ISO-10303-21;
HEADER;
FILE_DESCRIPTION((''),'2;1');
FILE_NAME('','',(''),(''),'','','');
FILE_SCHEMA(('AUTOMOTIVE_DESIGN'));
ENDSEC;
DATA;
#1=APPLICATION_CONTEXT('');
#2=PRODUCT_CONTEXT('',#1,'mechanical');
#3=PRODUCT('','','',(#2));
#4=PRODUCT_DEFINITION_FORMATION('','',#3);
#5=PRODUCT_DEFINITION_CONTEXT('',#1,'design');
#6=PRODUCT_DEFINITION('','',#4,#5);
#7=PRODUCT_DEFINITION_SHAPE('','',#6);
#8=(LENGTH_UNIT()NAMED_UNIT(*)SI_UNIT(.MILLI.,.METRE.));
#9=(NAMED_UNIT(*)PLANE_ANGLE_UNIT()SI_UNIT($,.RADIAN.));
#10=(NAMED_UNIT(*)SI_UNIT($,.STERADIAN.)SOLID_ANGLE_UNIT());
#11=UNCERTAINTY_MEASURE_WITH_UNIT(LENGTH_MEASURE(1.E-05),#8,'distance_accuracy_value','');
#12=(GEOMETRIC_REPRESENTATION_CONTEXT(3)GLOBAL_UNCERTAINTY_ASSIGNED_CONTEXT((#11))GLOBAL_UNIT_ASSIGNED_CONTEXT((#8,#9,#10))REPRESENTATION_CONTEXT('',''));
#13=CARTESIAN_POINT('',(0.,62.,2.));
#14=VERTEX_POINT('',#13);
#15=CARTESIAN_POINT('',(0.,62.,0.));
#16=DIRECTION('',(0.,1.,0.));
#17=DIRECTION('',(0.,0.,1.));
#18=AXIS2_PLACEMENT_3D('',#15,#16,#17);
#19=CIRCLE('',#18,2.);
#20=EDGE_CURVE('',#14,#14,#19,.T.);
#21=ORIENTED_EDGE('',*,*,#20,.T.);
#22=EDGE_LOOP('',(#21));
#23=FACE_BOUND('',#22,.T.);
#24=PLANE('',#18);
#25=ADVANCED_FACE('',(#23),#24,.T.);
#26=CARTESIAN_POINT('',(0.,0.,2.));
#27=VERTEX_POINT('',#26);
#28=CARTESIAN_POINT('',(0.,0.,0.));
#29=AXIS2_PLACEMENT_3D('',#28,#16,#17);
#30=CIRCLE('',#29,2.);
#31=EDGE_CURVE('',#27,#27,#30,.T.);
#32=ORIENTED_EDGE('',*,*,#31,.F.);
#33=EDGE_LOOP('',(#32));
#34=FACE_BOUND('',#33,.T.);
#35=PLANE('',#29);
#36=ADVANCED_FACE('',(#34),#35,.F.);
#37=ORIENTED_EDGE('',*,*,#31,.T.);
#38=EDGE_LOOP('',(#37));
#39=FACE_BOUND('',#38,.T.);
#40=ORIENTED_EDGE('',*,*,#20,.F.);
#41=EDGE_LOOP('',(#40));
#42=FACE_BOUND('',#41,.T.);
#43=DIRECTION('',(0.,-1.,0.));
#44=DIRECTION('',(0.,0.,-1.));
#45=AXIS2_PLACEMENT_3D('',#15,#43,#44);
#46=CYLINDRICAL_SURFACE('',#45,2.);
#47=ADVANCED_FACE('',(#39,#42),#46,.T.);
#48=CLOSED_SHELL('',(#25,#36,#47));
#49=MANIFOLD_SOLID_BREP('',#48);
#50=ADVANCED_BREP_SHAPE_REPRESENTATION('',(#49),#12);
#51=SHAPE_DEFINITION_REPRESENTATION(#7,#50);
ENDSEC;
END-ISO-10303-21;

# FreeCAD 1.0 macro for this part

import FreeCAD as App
import Part
import Sketcher

doc = App.newDocument("Part")
body = doc.addObject("PartDesign::Body", "Body")

# Sketch on XZ plane
sketch1 = body.newObject("Sketcher::SketchObject", "Sketch")
sketch1.AttachmentSupport = (doc.getObject("XZ_Plane"), [""])
sketch1.MapMode = "FlatFace"
sketch1.addGeometry(Part.Circle(App.Vector(0, 0, 0), App.Vector(0, 0, 1), 2), False)
sketch1.addConstraint(Sketcher.Constraint("Coincident", 0, 3, -1, 1))
sketch1.addConstraint(Sketcher.Constraint("Diameter", 0, 4.0))
pad1 = body.newObject("PartDesign::Pad", "Pad")
pad1.Profile = sketch1
pad1.Length = 62
pad1.Reversed = True

doc.recompute()
